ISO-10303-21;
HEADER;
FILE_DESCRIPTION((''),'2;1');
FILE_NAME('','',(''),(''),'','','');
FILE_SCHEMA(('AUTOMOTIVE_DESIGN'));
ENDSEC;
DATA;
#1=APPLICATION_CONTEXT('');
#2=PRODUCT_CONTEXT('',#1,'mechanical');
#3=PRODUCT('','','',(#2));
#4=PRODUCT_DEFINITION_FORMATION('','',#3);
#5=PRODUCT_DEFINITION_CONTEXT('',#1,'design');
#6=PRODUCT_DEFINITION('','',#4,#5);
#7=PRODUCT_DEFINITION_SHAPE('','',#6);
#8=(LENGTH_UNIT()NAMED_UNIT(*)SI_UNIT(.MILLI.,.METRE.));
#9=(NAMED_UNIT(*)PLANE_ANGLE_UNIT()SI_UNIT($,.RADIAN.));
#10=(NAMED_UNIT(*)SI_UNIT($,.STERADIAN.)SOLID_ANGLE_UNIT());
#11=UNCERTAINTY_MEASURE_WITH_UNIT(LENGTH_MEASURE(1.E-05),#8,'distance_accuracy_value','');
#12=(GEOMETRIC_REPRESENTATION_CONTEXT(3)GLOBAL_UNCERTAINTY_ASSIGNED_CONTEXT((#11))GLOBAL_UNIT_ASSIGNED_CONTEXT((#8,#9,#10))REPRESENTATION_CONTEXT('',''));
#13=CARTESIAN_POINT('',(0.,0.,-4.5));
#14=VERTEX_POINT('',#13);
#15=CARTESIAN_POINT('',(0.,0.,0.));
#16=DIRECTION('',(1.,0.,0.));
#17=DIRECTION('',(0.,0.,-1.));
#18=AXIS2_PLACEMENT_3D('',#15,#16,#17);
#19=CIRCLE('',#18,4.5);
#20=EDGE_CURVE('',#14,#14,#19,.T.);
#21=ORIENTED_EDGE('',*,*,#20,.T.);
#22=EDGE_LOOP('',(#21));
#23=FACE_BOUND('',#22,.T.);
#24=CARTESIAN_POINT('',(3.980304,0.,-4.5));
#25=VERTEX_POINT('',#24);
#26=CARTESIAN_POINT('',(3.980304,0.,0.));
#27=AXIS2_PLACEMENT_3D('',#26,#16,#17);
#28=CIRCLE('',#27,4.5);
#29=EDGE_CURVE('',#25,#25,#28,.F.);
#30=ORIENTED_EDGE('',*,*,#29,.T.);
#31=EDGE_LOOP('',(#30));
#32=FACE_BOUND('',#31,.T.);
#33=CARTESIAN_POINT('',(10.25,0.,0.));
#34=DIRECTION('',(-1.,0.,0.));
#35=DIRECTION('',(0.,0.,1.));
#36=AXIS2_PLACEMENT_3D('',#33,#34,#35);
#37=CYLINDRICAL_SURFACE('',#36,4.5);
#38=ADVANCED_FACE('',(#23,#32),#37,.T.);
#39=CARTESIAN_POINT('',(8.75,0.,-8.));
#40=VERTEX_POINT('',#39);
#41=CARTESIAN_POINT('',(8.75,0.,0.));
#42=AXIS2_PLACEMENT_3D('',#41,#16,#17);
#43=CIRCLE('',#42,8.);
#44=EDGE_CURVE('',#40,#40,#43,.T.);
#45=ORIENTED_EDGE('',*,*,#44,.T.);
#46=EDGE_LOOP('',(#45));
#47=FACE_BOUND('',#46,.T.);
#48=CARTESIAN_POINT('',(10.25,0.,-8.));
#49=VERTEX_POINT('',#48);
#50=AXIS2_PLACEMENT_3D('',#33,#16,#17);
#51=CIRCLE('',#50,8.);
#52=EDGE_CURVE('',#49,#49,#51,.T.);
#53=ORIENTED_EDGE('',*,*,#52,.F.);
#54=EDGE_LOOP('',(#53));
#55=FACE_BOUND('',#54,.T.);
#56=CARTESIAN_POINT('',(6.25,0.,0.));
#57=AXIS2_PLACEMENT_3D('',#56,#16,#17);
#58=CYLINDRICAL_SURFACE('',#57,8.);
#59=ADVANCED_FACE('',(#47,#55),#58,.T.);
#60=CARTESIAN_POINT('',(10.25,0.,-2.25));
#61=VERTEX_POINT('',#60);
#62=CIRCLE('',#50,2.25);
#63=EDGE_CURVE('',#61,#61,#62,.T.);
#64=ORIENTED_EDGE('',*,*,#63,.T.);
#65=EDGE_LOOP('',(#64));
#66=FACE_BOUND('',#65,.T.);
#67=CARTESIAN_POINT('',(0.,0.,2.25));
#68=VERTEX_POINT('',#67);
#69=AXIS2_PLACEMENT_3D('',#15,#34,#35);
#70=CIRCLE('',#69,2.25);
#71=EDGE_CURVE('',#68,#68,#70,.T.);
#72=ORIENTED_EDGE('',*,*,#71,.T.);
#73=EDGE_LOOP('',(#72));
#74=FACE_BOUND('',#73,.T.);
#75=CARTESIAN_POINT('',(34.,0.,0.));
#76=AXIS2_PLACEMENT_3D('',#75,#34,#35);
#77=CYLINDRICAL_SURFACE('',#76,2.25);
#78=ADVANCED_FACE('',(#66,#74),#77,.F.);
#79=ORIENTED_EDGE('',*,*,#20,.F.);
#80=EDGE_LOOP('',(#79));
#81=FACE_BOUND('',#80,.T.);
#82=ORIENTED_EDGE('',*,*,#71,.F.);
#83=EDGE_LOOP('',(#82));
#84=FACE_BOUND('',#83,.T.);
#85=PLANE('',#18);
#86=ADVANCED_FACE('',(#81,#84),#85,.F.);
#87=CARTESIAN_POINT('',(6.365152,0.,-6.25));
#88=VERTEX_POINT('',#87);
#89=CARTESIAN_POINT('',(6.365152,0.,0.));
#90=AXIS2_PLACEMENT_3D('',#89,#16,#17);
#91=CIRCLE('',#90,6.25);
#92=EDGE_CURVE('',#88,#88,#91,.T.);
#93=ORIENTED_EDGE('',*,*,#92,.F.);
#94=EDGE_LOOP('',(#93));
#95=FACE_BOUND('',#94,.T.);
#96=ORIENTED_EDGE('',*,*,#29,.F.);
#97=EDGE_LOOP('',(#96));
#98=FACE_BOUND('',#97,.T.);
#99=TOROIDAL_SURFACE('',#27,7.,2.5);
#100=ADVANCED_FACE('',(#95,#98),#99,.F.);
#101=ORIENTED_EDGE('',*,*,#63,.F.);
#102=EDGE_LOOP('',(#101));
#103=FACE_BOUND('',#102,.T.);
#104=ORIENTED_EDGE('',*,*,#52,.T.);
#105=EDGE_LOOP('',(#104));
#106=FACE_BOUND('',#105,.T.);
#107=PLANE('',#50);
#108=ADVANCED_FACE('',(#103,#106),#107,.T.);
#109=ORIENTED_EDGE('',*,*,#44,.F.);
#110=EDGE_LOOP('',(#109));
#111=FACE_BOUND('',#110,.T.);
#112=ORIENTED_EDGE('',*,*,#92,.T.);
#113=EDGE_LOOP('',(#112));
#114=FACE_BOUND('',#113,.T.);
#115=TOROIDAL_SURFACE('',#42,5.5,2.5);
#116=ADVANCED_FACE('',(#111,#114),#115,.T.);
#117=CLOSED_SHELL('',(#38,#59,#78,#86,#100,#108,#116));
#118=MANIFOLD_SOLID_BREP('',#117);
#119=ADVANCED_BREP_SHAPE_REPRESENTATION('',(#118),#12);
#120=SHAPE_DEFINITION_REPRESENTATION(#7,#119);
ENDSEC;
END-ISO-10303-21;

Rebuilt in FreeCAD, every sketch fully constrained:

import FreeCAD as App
import Part
import Sketcher
Q = App.Units.Quantity


def edges_at(feature, points):
    """Names of the edges that pass closest to the given points."""
    edges = feature.Shape.Edges
    near = lambda p: min(range(len(edges)), key=lambda i: edges[i].distToShape(Part.Vertex(*p))[0])
    return sorted({f"Edge{near(p) + 1}" for p in points})

doc = App.newDocument("Part")
body = doc.addObject("PartDesign::Body", "Body")

# Sketch on YZ plane
sketch1 = doc.addObject("Sketcher::SketchObject", "Sketch")
body.addObject(sketch1)
sketch1.AttachmentSupport = (doc.YZ_Plane, [""])
sketch1.MapMode = "FlatFace"
sketch1.addGeometry(Part.Circle(App.Vector(0, 0, 0), App.Vector(0, 0, 1), 4.5), False)
sketch1.addConstraint(Sketcher.Constraint("Coincident", 0, 3, -1, 1))
sketch1.addConstraint(Sketcher.Constraint("Diameter", 0, Q("9 mm")))
pad1 = doc.addObject("PartDesign::Pad", "Pad")
body.addObject(pad1)
pad1.Profile = sketch1
pad1.Length = 10.25

# Sketch on YZ plane
sketch2 = doc.addObject("Sketcher::SketchObject", "Sketch001")
body.addObject(sketch2)
sketch2.AttachmentSupport = (doc.YZ_Plane, [""])
sketch2.MapMode = "FlatFace"
sketch2.addGeometry(Part.Circle(App.Vector(0, 0, 0), App.Vector(0, 0, 1), 2.3), False)
sketch2.addConstraint(Sketcher.Constraint("Coincident", 0, 3, -1, 1))
sketch2.addConstraint(Sketcher.Constraint("Diameter", 0, Q("4.5 mm")))
pocket1 = doc.addObject("PartDesign::Pocket", "Pocket")
body.addObject(pocket1)
pocket1.Profile = sketch2
pocket1.Length = 34
pocket1.Reversed = True

# Sketch on YZ plane
sketch3 = doc.addObject("Sketcher::SketchObject", "Sketch002")
body.addObject(sketch3)
sketch3.AttachmentSupport = (doc.YZ_Plane, [""])
sketch3.MapMode = "FlatFace"
sketch3.AttachmentOffset = App.Placement(App.Vector(0, 0, 6.25), App.Rotation())
sketch3.addGeometry(Part.Circle(App.Vector(0, 0, 0), App.Vector(0, 0, 1), 8), False)
sketch3.addGeometry(Part.Circle(App.Vector(0, 0, 0), App.Vector(0, 0, 1), 4.5), False)
sketch3.addConstraint(Sketcher.Constraint("Coincident", 0, 3, -1, 1))
sketch3.addConstraint(Sketcher.Constraint("Coincident", 1, 3, -1, 1))
sketch3.addConstraint(Sketcher.Constraint("Diameter", 0, Q("16 mm")))
sketch3.addConstraint(Sketcher.Constraint("Diameter", 1, Q("9 mm")))
pad2 = doc.addObject("PartDesign::Pad", "Pad001")
body.addObject(pad2)
pad2.Profile = sketch3
pad2.Length = 4
doc.recompute()

fillet = doc.addObject("PartDesign::Fillet", "Fillet")
body.addObject(fillet)
fillet.Base = (pad2, edges_at(pad2, [(6.25, 0, 8)]))
fillet.Radius = 2.5
doc.recompute()

fillet2 = doc.addObject("PartDesign::Fillet", "Fillet001")
body.addObject(fillet2)
fillet2.Base = (fillet, edges_at(fillet, [(6.25, 0, 4.5)]))
fillet2.Radius = 2.5

doc.recompute()
